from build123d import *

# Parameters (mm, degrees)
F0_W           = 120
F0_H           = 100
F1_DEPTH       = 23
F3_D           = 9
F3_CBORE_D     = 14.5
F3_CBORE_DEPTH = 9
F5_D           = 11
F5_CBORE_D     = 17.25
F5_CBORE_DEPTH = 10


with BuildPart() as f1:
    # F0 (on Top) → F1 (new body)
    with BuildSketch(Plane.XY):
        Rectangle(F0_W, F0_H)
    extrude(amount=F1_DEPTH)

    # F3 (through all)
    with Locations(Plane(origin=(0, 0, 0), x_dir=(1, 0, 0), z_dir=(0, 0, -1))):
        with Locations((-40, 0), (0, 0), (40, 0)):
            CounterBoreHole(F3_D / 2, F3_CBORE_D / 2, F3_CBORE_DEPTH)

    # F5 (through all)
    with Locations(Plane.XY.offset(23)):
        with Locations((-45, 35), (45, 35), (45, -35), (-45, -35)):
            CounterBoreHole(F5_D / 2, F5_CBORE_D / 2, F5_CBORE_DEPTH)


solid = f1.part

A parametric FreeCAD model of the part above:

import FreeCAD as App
import Part
import Sketcher

V = App.Vector
Q = App.Units.Quantity


def add_polygon(sketch, points):
    """Adds a closed chain of lines whose ends are joined by coincident constraints."""
    first, n = sketch.GeometryCount, len(points)
    for a, b in zip(points, points[1:] + points[:1]):
        sketch.addGeometry(Part.LineSegment(App.Vector(*a, 0), App.Vector(*b, 0)), False)
    for i in range(n):
        sketch.addConstraint(Sketcher.Constraint("Coincident", first + i, 2, first + (i + 1) % n, 1))

doc = App.newDocument("Part")
body = doc.addObject("PartDesign::Body", "Body")

sketch1 = body.newObject("Sketcher::SketchObject", "Sketch")
sketch1.AttachmentSupport = (doc.getObject("XY_Plane"), [""])
sketch1.MapMode = "FlatFace"
add_polygon(sketch1, [(-60, 50), (-60, -50), (60, -50), (60, 50)])
sketch1.addConstraint(Sketcher.Constraint("Vertical", 0))
sketch1.addConstraint(Sketcher.Constraint("Horizontal", 1))
sketch1.addConstraint(Sketcher.Constraint("Vertical", 2))
sketch1.addConstraint(Sketcher.Constraint("Horizontal", 3))
sketch1.addConstraint(Sketcher.Constraint("Symmetric", 0, 2, 2, 2, -1, 1))
sketch1.addConstraint(Sketcher.Constraint("DistanceX", 1, 1, 1, 2, Q("120 mm")))
sketch1.addConstraint(Sketcher.Constraint("DistanceY", 0, 2, 0, 1, Q("100 mm")))
pad1 = body.newObject("PartDesign::Pad", "Pad")
pad1.Profile = sketch1
pad1.Length = 23

sketch2 = body.newObject("Sketcher::SketchObject", "Sketch001")
sketch2.AttachmentSupport = (doc.getObject("XY_Plane"), [""])
sketch2.MapMode = "FlatFace"
sketch2.addGeometry(Part.Circle(V(-40, 0, 0), V(0, 0, 1), 4.5), False)
sketch2.addGeometry(Part.Circle(V(0, 0, 0), V(0, 0, 1), 4.5), False)
sketch2.addGeometry(Part.Circle(V(40, 0, 0), V(0, 0, 1), 4.5), False)
sketch2.addConstraint(Sketcher.Constraint("Coincident", 1, 3, -1, 1))
sketch2.addConstraint(Sketcher.Constraint("Equal", 0, 1))
sketch2.addConstraint(Sketcher.Constraint("Equal", 1, 2))
sketch2.addConstraint(Sketcher.Constraint("Symmetric", 0, 3, 2, 3, -1, 1))
sketch2.addConstraint(Sketcher.Constraint("PointOnObject", 0, 3, -1))
sketch2.addConstraint(Sketcher.Constraint("Diameter", 0, Q("9 mm")))
sketch2.addConstraint(Sketcher.Constraint("DistanceX", 0, 3, -1, 1, Q("40 mm")))
doc.recompute()
hole = body.newObject("PartDesign::Hole", "Hole")
hole.Profile = sketch2
hole.ThreadType = "None"
hole.Diameter = 9
hole.DepthType = "ThroughAll"
hole.HoleCutType = "Counterbore"
hole.HoleCutDiameter = 14.5
hole.HoleCutDepth = 9
hole.Reversed = True

sketch3 = body.newObject("Sketcher::SketchObject", "Sketch002")
sketch3.AttachmentSupport = (doc.getObject("XY_Plane"), [""])
sketch3.MapMode = "FlatFace"
sketch3.AttachmentOffset = App.Placement(V(0, 0, 23), App.Rotation())
sketch3.addGeometry(Part.Circle(V(-45, 35, 0), V(0, 0, 1), 5.5), False)
sketch3.addGeometry(Part.Circle(V(45, 35, 0), V(0, 0, 1), 5.5), False)
sketch3.addGeometry(Part.Circle(V(45, -35, 0), V(0, 0, 1), 5.5), False)
sketch3.addGeometry(Part.Circle(V(-45, -35, 0), V(0, 0, 1), 5.5), False)
sketch3.addConstraint(Sketcher.Constraint("Equal", 0, 1))
sketch3.addConstraint(Sketcher.Constraint("Equal", 1, 2))
sketch3.addConstraint(Sketcher.Constraint("Equal", 2, 3))
sketch3.addConstraint(Sketcher.Constraint("Symmetric", 0, 3, 2, 3, -1, 1))
sketch3.addConstraint(Sketcher.Constraint("Symmetric", 1, 3, 3, 3, -1, 1))
sketch3.addConstraint(Sketcher.Constraint("Symmetric", 0, 3, 1, 3, -2))
sketch3.addConstraint(Sketcher.Constraint("Diameter", 0, Q("11 mm")))
sketch3.addConstraint(Sketcher.Constraint("DistanceX", 0, 3, -1, 1, Q("45 mm")))
sketch3.addConstraint(Sketcher.Constraint("DistanceY", -1, 1, 0, 3, Q("35 mm")))
doc.recompute()
hole2 = body.newObject("PartDesign::Hole", "Hole001")
hole2.Profile = sketch3
hole2.ThreadType = "None"
hole2.Diameter = 11
hole2.DepthType = "ThroughAll"
hole2.HoleCutType = "Counterbore"
hole2.HoleCutDiameter = 17.25
hole2.HoleCutDepth = 10

doc.recompute()
